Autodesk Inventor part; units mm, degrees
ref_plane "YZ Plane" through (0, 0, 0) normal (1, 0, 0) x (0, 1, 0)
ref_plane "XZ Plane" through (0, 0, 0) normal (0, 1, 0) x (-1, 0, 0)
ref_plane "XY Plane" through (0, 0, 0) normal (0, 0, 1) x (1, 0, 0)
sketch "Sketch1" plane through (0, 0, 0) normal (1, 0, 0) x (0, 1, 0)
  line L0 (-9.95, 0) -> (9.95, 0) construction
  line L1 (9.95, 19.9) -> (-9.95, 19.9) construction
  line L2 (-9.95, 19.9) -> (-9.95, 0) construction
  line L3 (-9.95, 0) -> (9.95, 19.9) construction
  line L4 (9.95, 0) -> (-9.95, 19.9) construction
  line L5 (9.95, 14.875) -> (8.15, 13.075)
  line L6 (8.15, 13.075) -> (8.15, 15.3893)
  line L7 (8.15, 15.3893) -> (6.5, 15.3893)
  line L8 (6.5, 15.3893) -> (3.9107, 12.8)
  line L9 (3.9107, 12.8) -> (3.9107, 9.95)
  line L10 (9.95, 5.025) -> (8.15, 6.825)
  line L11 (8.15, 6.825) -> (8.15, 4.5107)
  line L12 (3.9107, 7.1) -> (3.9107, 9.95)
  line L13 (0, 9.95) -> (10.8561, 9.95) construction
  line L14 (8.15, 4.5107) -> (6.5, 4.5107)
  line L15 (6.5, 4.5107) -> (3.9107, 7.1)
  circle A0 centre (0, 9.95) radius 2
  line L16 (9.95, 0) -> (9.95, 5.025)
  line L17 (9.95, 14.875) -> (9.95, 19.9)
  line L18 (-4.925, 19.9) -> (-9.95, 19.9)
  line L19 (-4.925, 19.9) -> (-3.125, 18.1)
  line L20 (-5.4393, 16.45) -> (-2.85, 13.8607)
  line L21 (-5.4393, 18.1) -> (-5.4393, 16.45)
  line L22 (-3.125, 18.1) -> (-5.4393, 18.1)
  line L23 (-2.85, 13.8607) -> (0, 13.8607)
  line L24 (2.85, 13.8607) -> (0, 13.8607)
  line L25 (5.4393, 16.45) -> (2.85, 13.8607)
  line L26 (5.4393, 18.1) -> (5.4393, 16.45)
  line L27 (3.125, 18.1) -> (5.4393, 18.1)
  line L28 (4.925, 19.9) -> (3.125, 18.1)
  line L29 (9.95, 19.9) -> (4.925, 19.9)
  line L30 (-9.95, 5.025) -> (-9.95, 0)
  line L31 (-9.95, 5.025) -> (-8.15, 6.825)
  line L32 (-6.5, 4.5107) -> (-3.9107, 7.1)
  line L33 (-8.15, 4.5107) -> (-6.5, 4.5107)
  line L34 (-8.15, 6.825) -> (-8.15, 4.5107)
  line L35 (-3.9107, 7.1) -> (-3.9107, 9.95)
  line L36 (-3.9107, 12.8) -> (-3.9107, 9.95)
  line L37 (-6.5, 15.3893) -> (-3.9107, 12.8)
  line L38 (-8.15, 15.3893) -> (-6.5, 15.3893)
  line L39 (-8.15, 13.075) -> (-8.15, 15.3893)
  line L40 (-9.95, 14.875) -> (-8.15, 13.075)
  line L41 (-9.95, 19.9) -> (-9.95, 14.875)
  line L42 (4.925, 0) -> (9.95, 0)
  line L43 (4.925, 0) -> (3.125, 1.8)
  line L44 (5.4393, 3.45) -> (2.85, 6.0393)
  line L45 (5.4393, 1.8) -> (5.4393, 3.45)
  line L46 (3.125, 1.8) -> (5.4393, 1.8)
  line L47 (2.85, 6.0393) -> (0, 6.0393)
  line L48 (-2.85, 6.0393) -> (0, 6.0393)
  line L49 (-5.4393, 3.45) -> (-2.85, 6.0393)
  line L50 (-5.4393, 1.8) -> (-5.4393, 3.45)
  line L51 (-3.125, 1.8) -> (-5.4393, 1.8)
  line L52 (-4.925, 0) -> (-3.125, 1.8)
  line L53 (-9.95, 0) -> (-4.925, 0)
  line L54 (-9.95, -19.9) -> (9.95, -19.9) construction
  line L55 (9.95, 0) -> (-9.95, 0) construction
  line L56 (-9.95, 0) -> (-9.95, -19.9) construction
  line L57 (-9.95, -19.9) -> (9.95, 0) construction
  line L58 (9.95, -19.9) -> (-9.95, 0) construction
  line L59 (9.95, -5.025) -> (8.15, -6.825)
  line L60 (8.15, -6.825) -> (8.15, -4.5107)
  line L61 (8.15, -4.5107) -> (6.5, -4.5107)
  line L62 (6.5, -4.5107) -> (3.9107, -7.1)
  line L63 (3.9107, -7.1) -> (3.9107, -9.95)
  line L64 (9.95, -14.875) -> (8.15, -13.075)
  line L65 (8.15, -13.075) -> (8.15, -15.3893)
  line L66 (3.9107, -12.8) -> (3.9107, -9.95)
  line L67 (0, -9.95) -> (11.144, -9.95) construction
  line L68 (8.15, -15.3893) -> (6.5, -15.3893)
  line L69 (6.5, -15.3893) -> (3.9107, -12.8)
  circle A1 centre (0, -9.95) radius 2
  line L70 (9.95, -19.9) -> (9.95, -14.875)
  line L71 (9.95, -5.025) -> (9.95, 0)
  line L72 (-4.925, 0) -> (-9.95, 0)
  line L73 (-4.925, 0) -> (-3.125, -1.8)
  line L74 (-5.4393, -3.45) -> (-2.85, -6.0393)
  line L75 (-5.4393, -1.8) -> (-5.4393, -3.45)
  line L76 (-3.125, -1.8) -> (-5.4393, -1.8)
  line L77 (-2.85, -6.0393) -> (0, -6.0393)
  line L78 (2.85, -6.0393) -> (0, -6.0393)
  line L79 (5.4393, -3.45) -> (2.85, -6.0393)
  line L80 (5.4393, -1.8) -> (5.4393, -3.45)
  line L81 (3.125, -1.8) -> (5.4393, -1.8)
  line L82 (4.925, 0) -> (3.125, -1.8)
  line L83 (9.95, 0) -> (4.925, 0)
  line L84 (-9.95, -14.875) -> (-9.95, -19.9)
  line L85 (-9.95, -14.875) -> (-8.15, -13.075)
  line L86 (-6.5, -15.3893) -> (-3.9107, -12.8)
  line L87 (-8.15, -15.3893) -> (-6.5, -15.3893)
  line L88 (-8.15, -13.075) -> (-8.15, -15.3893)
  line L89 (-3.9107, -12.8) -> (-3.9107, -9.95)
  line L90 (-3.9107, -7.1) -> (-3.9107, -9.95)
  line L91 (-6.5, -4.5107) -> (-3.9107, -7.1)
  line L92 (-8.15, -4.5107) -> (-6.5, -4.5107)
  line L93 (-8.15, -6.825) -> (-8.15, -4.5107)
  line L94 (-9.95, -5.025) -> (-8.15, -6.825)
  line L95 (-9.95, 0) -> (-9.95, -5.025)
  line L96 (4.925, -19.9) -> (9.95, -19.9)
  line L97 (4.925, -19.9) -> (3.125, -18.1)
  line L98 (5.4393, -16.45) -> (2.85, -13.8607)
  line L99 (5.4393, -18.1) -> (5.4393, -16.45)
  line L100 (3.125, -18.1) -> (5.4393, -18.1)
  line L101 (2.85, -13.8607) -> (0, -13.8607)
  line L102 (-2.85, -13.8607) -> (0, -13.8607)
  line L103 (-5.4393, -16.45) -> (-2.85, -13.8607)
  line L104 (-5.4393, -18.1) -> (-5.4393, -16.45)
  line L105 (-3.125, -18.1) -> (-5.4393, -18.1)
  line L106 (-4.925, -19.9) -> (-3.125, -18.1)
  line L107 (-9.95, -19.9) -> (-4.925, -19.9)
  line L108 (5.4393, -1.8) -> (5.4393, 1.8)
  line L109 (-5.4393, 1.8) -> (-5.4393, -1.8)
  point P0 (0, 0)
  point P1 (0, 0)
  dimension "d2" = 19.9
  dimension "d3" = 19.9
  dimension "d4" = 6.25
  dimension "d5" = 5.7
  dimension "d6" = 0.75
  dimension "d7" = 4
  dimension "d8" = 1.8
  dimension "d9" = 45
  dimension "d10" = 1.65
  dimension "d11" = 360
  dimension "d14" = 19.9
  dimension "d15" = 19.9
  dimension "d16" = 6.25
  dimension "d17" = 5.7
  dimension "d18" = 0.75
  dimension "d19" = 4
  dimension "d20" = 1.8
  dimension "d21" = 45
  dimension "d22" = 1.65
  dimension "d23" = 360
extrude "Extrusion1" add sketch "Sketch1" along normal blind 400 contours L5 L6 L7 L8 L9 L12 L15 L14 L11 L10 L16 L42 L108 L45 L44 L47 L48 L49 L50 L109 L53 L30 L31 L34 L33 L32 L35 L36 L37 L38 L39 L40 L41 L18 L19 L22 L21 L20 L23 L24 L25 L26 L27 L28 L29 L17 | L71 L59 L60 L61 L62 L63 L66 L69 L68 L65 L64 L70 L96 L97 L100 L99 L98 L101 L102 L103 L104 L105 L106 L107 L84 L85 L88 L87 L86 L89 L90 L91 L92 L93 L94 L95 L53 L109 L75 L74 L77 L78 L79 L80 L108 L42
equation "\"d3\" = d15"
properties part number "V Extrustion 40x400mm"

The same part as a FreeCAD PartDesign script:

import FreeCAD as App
import Part
import Sketcher

V = App.Vector
Q = App.Units.Quantity


def add_polygon(sketch, points):
    """Adds a closed chain of lines whose ends are joined by coincident constraints."""
    first, n = sketch.GeometryCount, len(points)
    for a, b in zip(points, points[1:] + points[:1]):
        sketch.addGeometry(Part.LineSegment(App.Vector(*a, 0), App.Vector(*b, 0)), False)
    for i in range(n):
        sketch.addConstraint(Sketcher.Constraint("Coincident", first + i, 2, first + (i + 1) % n, 1))

doc = App.newDocument("Part")
body = doc.addObject("PartDesign::Body", "Body")

# Sketch on YZ plane
sketch1 = body.newObject("Sketcher::SketchObject", "Sketch")
sketch1.AttachmentSupport = (doc.getObject("YZ_Plane"), [""])
sketch1.MapMode = "FlatFace"
add_polygon(sketch1, [(8.2, 13.1), (9.9, 14.9), (9.9, 19.9), (4.9, 19.9), (3.1, 18.1), (5.4, 18.1), (5.4, 16.4), (2.9, 13.9), (-2.9, 13.9), (-5.4, 16.4), (-5.4, 18.1), (-3.1, 18.1), (-4.9, 19.9), (-9.9, 19.9), (-9.9, 14.9), (-8.2, 13.1), (-8.2, 15.4), (-6.5, 15.4), (-3.9, 12.8), (-3.9, 7.1), (-6.5, 4.5), (-8.2, 4.5), (-8.2, 6.8), (-9.9, 5), (-9.9, -5), (-8.2, -6.8), (-8.2, -4.5), (-6.5, -4.5), (-3.9, -7.1), (-3.9, -12.8), (-6.5, -15.4), (-8.2, -15.4), (-8.2, -13.1), (-9.9, -14.9), (-9.9, -19.9), (-4.9, -19.9), (-3.1, -18.1), (-5.4, -18.1), (-5.4, -16.4), (-2.9, -13.9), (2.9, -13.9), (5.4, -16.4), (5.4, -18.1), (3.1, -18.1), (4.9, -19.9), (9.9, -19.9), (9.9, -14.9), (8.2, -13.1), (8.2, -15.4), (6.5, -15.4), (3.9, -12.8), (3.9, -7.1), (6.5, -4.5), (8.2, -4.5), (8.2, -6.8), (9.9, -5), (9.9, 5), (8.2, 6.8), (8.2, 4.5), (6.5, 4.5), (3.9, 7.1), (3.9, 12.8), (6.5, 15.4), (8.2, 15.4)])  # lines 0-63
add_polygon(sketch1, [(5.4, -3.5), (2.9, -6), (-2.9, -6), (-5.4, -3.5), (-5.4, 3.5), (-2.9, 6), (2.9, 6), (5.4, 3.5)])  # lines 64-71
sketch1.addGeometry(Part.Circle(V(0, 9.9, 0), V(0, 0, 1), 2), False)  # 72
sketch1.addGeometry(Part.Circle(V(0, -9.9, 0), V(0, 0, 1), 2), False)  # 73
sketch1.addConstraint([
    Sketcher.Constraint("Vertical", 1),
    Sketcher.Constraint("Horizontal", 2),
    Sketcher.Constraint("Horizontal", 4),
    Sketcher.Constraint("Vertical", 5),
    Sketcher.Constraint("Horizontal", 7),
    Sketcher.Constraint("Vertical", 9),
    Sketcher.Constraint("Horizontal", 10),
    Sketcher.Constraint("Horizontal", 12),
    Sketcher.Constraint("Vertical", 13),
    Sketcher.Constraint("Vertical", 15),
    Sketcher.Constraint("Horizontal", 16),
    Sketcher.Constraint("Vertical", 18),
    Sketcher.Constraint("Horizontal", 20),
    Sketcher.Constraint("Vertical", 21),
    Sketcher.Constraint("Vertical", 23),
    Sketcher.Constraint("Vertical", 25),
    Sketcher.Constraint("Horizontal", 26),
    Sketcher.Constraint("Vertical", 28),
    Sketcher.Constraint("Horizontal", 30),
    Sketcher.Constraint("Vertical", 31),
    Sketcher.Constraint("Vertical", 33),
    Sketcher.Constraint("Horizontal", 34),
    Sketcher.Constraint("Horizontal", 36),
    Sketcher.Constraint("Vertical", 37),
    Sketcher.Constraint("Horizontal", 39),
    Sketcher.Constraint("Vertical", 41),
    Sketcher.Constraint("Horizontal", 42),
    Sketcher.Constraint("Horizontal", 44),
    Sketcher.Constraint("Vertical", 45),
    Sketcher.Constraint("Vertical", 47),
    Sketcher.Constraint("Horizontal", 48),
    Sketcher.Constraint("Vertical", 50),
    Sketcher.Constraint("Horizontal", 52),
    Sketcher.Constraint("Vertical", 53),
    Sketcher.Constraint("Vertical", 55),
    Sketcher.Constraint("Vertical", 57),
    Sketcher.Constraint("Horizontal", 58),
    Sketcher.Constraint("Vertical", 60),
    Sketcher.Constraint("Horizontal", 62),
    Sketcher.Constraint("Vertical", 63),
    Sketcher.Constraint("Horizontal", 65),
    Sketcher.Constraint("Vertical", 67),
    Sketcher.Constraint("Horizontal", 69),
    Sketcher.Constraint("Vertical", 71),
    Sketcher.Constraint("Equal", 72, 73),
    Sketcher.Constraint("Symmetric", 72, 3, 73, 3, -1, 1),
    Sketcher.Constraint("Symmetric", 0, 2, 32, 2, -1, 1),
    Sketcher.Constraint("Symmetric", 2, 2, 34, 2, -1, 1),
    Sketcher.Constraint("Symmetric", 3, 2, 35, 2, -1, 1),
    Sketcher.Constraint("Symmetric", 5, 2, 37, 2, -1, 1),
    Sketcher.Constraint("Symmetric", 6, 2, 38, 2, -1, 1),
    Sketcher.Constraint("Symmetric", 8, 2, 40, 2, -1, 1),
    Sketcher.Constraint("Symmetric", 10, 2, 42, 2, -1, 1),
    Sketcher.Constraint("Symmetric", 11, 2, 43, 2, -1, 1),
    Sketcher.Constraint("Symmetric", 13, 2, 45, 2, -1, 1),
    Sketcher.Constraint("Symmetric", 14, 2, 46, 2, -1, 1),
    Sketcher.Constraint("Symmetric", 16, 2, 48, 2, -1, 1),
    Sketcher.Constraint("Symmetric", 17, 2, 49, 2, -1, 1),
    Sketcher.Constraint("Symmetric", 19, 2, 51, 2, -1, 1),
    Sketcher.Constraint("Symmetric", 21, 2, 53, 2, -1, 1),
    Sketcher.Constraint("Symmetric", 22, 2, 54, 2, -1, 1),
    Sketcher.Constraint("Symmetric", 24, 2, 56, 2, -1, 1),
    Sketcher.Constraint("Symmetric", 26, 2, 58, 2, -1, 1),
    Sketcher.Constraint("Symmetric", 27, 2, 59, 2, -1, 1),
    Sketcher.Constraint("Symmetric", 29, 2, 61, 2, -1, 1),
    Sketcher.Constraint("Symmetric", 31, 2, 63, 2, -1, 1),
    Sketcher.Constraint("Symmetric", 64, 2, 68, 2, -1, 1),
    Sketcher.Constraint("Symmetric", 66, 2, 70, 2, -1, 1),
    Sketcher.Constraint("Symmetric", 5, 2, 8, 2, -2),
    Sketcher.Constraint("Symmetric", 3, 2, 10, 2, -2),
    Sketcher.Constraint("Symmetric", 2, 2, 11, 2, -2),
    Sketcher.Constraint("Symmetric", 0, 2, 13, 2, -2),
    Sketcher.Constraint("Symmetric", 31, 2, 46, 2, -2),
    Sketcher.Constraint("Symmetric", 29, 2, 48, 2, -2),
    Sketcher.Constraint("Symmetric", 28, 2, 49, 2, -2),
    Sketcher.Constraint("Symmetric", 26, 2, 51, 2, -2),
    Sketcher.Constraint("Symmetric", 24, 2, 53, 2, -2),
    Sketcher.Constraint("PointOnObject", 72, 3, -2),
    Sketcher.Constraint("Parallel", 0, 3),
    Sketcher.Constraint("Parallel", 3, 6),
    Sketcher.Constraint("Perpendicular", 6, 8),
    Sketcher.Constraint("Parallel", 8, 11),
    Sketcher.Constraint("Parallel", 14, 17),
    Sketcher.Constraint("Perpendicular", 17, 19),
    Sketcher.Constraint("Parallel", 19, 22),
    Sketcher.Constraint("Perpendicular", 22, 24),
    Sketcher.Constraint("Parallel", 24, 27),
    Sketcher.Constraint("Perpendicular", 38, 40),
    Sketcher.Constraint("Perpendicular", 49, 51),
    Sketcher.Constraint("Perpendicular", 54, 56),
    Sketcher.Constraint("Perpendicular", 59, 61),
    Sketcher.Constraint("Parallel", 61, 64),
    Sketcher.Constraint("Perpendicular", 64, 66),
    Sketcher.Constraint("Perpendicular", 66, 68),
    Sketcher.Constraint("Perpendicular", 68, 70),
    Sketcher.Constraint("Horizontal", 67, 2, 70, 2),
    Sketcher.Constraint("Vertical", 16, 2, 19, 2),
    Sketcher.Constraint("Vertical", 15, 2, 20, 2),
    Sketcher.Constraint("Vertical", 13, 2, 22, 2),
    Sketcher.Constraint("Vertical", 39, 2, 64, 2),
    Sketcher.Constraint("Vertical", 37, 2, 66, 2),
    Sketcher.Constraint("Equal", 44, 1),
    Sketcher.Constraint("Equal", 62, 5),
    Sketcher.Constraint("Equal", 42, 15),
    Sketcher.Constraint("Equal", 69, 18),
    Sketcher.Constraint("Equal", 15, 21),
    Sketcher.Constraint("Equal", 0, 3),
    Sketcher.Constraint("Equal", 8, 17),
    Sketcher.Constraint("Diameter", 72, Q("4 mm")),
    Sketcher.Constraint("DistanceX", 7, 2, 7, 1, Q("5.7 mm")),
    Sketcher.Constraint("DistanceX", 16, 1, 16, 2, Q("1.65 mm")),
    Sketcher.Constraint("DistanceY", -1, 1, 1, 2, Q("19.9 mm")),
    Sketcher.Constraint("DistanceY", 67, 1, 67, 2, Q("6.9 mm")),
    Sketcher.Constraint("DistanceY", 23, 2, 23, 1, Q("10.05 mm")),
    Sketcher.Constraint("DistanceY", -1, 1, 3, 2, Q("18.1 mm")),
    Sketcher.Constraint("DistanceX", 16, 2, -1, 1, Q("6.5 mm")),
    Sketcher.Constraint("DistanceY", -1, 1, 72, 3, Q("9.95 mm")),
    Sketcher.Constraint("DistanceX", 4, 1, 4, 2, Q("2.3143 mm")),
])
pad1 = body.newObject("PartDesign::Pad", "Pad")
pad1.Profile = sketch1
pad1.Length = 400

doc.recompute()
